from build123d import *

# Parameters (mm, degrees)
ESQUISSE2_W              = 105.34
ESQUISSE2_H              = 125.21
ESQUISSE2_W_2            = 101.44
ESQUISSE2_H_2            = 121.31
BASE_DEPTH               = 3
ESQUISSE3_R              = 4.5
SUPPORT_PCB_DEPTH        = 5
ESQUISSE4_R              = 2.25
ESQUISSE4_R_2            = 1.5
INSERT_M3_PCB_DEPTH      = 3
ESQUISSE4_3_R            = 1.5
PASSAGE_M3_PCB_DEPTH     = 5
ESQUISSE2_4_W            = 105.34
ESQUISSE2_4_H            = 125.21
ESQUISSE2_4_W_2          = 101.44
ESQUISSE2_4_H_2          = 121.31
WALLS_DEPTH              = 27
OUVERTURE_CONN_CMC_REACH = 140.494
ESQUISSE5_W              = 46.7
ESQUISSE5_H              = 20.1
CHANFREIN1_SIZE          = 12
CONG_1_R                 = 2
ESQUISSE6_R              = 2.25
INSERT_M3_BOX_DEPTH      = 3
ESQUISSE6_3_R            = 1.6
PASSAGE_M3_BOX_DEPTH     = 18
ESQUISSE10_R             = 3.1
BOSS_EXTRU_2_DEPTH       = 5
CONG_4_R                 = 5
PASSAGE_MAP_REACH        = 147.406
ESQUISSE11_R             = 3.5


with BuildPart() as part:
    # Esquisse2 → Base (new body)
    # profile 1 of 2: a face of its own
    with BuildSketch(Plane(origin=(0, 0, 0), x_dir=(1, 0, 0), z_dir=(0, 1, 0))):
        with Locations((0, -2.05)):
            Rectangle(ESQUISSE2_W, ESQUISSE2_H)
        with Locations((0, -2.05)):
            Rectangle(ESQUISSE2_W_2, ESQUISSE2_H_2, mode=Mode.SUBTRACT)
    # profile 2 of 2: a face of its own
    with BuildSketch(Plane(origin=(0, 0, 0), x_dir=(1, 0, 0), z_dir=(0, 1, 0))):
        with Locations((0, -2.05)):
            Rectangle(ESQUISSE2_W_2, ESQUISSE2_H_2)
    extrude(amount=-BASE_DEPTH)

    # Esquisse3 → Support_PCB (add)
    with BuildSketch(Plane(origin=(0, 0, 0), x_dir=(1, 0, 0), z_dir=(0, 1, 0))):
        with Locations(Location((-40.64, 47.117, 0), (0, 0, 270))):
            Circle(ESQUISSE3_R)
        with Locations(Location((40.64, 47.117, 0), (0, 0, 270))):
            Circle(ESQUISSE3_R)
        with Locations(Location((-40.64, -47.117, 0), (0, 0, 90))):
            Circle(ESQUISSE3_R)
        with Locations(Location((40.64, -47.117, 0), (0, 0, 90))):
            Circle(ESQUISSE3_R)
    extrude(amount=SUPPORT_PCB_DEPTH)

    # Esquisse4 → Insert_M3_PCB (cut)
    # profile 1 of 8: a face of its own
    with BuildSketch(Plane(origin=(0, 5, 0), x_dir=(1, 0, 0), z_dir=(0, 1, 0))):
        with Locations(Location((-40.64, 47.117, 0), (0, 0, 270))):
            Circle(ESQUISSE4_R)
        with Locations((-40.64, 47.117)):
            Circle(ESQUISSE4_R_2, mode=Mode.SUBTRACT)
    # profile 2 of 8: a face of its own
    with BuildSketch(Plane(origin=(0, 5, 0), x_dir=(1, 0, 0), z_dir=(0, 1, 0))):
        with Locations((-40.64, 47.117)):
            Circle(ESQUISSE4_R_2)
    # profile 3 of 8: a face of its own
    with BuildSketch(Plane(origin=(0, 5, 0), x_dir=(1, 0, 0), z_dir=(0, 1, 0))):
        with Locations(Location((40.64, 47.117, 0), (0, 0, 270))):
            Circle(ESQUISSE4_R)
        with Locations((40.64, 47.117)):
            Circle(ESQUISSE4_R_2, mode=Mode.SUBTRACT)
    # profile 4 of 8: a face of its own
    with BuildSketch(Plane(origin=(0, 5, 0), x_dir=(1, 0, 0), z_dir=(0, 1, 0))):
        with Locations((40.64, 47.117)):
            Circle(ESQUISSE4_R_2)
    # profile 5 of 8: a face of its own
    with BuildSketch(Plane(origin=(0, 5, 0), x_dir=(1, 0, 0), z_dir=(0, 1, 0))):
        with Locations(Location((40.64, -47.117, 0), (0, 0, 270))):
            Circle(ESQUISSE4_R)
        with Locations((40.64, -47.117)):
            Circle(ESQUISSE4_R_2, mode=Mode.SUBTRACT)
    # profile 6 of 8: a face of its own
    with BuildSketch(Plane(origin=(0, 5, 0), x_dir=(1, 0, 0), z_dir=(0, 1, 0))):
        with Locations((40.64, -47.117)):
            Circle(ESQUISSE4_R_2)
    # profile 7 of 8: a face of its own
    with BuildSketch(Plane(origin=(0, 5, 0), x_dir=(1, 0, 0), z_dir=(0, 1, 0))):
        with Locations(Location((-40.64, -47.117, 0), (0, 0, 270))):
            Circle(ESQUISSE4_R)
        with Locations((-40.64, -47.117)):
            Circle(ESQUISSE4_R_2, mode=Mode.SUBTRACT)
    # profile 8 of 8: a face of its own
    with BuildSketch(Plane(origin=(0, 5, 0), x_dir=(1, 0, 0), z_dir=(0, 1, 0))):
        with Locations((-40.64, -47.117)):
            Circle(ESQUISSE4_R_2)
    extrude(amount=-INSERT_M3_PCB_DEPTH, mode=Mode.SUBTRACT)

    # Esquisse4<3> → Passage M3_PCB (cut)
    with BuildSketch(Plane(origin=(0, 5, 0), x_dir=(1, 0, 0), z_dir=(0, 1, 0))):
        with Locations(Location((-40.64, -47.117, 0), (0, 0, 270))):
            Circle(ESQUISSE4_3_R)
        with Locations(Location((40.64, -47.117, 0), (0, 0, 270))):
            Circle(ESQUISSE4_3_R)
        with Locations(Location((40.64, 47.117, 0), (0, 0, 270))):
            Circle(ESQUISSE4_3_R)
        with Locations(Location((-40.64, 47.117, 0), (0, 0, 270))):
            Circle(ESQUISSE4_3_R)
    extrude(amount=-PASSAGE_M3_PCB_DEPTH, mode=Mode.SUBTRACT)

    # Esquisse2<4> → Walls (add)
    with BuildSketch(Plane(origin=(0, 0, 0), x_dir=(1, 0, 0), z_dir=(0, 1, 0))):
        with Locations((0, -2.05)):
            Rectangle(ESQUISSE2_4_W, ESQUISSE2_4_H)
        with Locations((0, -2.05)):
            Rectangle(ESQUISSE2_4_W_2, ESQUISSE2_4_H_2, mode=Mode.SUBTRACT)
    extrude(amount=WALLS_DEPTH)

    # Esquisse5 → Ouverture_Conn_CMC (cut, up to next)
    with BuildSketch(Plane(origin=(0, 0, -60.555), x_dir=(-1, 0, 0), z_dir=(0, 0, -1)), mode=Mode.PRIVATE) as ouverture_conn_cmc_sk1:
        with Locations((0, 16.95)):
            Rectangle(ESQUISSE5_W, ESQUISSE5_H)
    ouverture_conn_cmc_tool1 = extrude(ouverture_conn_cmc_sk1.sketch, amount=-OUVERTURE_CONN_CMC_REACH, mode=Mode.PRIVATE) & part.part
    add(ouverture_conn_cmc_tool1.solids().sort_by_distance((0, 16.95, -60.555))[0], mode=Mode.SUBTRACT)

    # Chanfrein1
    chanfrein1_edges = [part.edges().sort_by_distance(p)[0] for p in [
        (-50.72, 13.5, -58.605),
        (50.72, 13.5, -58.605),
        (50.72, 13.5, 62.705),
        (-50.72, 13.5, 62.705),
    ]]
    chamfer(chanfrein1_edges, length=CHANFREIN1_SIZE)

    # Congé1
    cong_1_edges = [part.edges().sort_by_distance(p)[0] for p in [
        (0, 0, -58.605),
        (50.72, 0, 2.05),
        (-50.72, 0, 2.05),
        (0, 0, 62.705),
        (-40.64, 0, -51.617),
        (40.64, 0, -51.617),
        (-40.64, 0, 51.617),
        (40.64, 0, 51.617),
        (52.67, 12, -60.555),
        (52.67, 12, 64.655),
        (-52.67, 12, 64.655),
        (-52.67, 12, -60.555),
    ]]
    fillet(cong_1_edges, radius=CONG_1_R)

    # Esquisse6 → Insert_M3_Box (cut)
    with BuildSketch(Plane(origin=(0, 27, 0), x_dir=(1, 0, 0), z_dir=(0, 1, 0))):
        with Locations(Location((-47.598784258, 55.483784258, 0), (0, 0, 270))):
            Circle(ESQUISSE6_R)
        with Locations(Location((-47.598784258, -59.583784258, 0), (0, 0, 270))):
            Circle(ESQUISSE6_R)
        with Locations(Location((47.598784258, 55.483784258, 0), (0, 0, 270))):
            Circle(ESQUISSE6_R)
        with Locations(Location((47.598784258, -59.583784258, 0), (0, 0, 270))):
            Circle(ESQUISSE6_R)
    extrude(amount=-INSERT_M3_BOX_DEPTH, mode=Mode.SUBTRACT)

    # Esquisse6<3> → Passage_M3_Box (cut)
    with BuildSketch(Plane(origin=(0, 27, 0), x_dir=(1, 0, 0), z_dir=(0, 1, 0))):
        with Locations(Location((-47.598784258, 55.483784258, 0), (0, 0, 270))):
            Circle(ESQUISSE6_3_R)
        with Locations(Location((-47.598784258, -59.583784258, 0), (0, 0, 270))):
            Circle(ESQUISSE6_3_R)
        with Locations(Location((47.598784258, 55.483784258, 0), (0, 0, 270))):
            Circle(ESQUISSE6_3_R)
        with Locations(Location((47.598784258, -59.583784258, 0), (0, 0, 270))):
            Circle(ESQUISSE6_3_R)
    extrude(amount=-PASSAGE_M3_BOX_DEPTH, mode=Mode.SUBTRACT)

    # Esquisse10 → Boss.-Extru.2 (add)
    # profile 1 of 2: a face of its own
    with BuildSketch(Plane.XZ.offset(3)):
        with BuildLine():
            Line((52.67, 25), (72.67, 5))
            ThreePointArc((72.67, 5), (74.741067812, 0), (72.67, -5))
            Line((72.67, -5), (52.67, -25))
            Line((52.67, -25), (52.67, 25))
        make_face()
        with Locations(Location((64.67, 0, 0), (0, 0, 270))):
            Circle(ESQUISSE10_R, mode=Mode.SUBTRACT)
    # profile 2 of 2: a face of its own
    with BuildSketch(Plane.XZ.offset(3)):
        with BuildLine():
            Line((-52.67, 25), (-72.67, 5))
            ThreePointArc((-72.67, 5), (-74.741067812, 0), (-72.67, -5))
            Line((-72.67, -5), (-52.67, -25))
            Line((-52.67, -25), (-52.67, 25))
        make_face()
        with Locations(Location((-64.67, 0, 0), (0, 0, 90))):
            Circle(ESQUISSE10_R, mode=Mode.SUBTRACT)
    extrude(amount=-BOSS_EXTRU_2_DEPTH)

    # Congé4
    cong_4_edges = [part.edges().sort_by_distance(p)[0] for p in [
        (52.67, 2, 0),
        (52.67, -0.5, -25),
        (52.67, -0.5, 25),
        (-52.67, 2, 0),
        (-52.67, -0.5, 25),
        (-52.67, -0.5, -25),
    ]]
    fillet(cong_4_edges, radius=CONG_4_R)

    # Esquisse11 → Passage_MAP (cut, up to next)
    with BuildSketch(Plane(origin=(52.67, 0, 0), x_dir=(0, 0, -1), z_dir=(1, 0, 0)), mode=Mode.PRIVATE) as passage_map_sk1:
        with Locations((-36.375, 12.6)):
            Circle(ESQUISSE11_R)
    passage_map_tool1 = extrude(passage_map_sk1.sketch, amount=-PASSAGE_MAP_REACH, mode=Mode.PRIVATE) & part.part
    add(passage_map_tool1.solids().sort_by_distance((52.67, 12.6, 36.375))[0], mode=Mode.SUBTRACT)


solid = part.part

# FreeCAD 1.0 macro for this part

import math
import FreeCAD as App
import Part
import Sketcher
from FreeCAD import Vector
Q = App.Units.Quantity


def edges_at(feature, points):
    """Names of the edges that pass closest to the given points."""
    edges = feature.Shape.Edges
    near = lambda p: min(range(len(edges)), key=lambda i: edges[i].distToShape(Part.Vertex(*p))[0])
    return sorted({f"Edge{near(p) + 1}" for p in points})


def add_polygon(sketch, points):
    """Adds a closed chain of lines whose ends are joined by coincident constraints."""
    first, n = sketch.GeometryCount, len(points)
    for a, b in zip(points, points[1:] + points[:1]):
        sketch.addGeometry(Part.LineSegment(App.Vector(*a, 0), App.Vector(*b, 0)), False)
    for i in range(n):
        sketch.addConstraint(Sketcher.Constraint("Coincident", first + i, 2, first + (i + 1) % n, 1))

doc = App.newDocument("Part")
body = doc.addObject("PartDesign::Body", "Body")

# Sketch on XZ plane
sketch1 = body.newObject("Sketcher::SketchObject", "Sketch")
sketch1.AttachmentSupport = (doc.getObject("XZ_Plane"), [""])
sketch1.MapMode = "FlatFace"
add_polygon(sketch1, [(-52.67, -60.555), (-52.67, 64.655), (52.67, 64.655), (52.67, -60.555)])  # lines 0-3
sketch1.addConstraint([
    Sketcher.Constraint("Vertical", 0),
    Sketcher.Constraint("Horizontal", 1),
    Sketcher.Constraint("Vertical", 2),
    Sketcher.Constraint("Horizontal", 3),
    Sketcher.Constraint("DistanceX", 1, 1, 1, 2, Q("105.34 mm")),
    Sketcher.Constraint("DistanceY", 0, 1, 0, 2, Q("125.21 mm")),
    Sketcher.Constraint("DistanceX", 0, 2, -1, 1, Q("52.67 mm")),
    Sketcher.Constraint("DistanceY", -1, 1, 0, 2, Q("64.655 mm")),
])
pad1 = body.newObject("PartDesign::Pad", "Pad")
pad1.Profile = sketch1
pad1.Length = 3

# Sketch on XZ plane
sketch2 = body.newObject("Sketcher::SketchObject", "Sketch001")
sketch2.AttachmentSupport = (doc.getObject("XZ_Plane"), [""])
sketch2.MapMode = "FlatFace"
sketch2.addGeometry([
    Part.Circle(Vector(-40.64, -47.117, 0), Vector(0, 0, 1), 4.5),
    Part.Circle(Vector(40.64, -47.117, 0), Vector(0, 0, 1), 4.5),
    Part.Circle(Vector(-40.64, 47.117, 0), Vector(0, 0, 1), 4.5),
    Part.Circle(Vector(40.64, 47.117, 0), Vector(0, 0, 1), 4.5),
], False)
sketch2.addConstraint([
    Sketcher.Constraint("Equal", 0, 1),
    Sketcher.Constraint("Equal", 1, 2),
    Sketcher.Constraint("Equal", 2, 3),
    Sketcher.Constraint("Symmetric", 1, 3, 2, 3, -1, 1),
    Sketcher.Constraint("Symmetric", 0, 3, 3, 3, -1, 1),
    Sketcher.Constraint("Symmetric", 0, 3, 1, 3, -2),
    Sketcher.Constraint("Diameter", 0, Q("9 mm")),
    Sketcher.Constraint("DistanceX", 0, 3, -1, 1, Q("40.64 mm")),
    Sketcher.Constraint("DistanceY", 0, 3, -1, 1, Q("47.117 mm")),
])
pad2 = body.newObject("PartDesign::Pad", "Pad001")
pad2.Profile = sketch2
pad2.Length = 5
pad2.Reversed = True

# Sketch on XZ plane
sketch3 = body.newObject("Sketcher::SketchObject", "Sketch002")
sketch3.AttachmentSupport = (doc.getObject("XZ_Plane"), [""])
sketch3.MapMode = "FlatFace"
sketch3.AttachmentOffset = App.Placement(Vector(0, 0, -5), App.Rotation())
sketch3.addGeometry([
    Part.Circle(Vector(-40.64, -47.117, 0), Vector(0, 0, 1), 2.25),
    Part.Circle(Vector(40.64, -47.117, 0), Vector(0, 0, 1), 2.25),
    Part.Circle(Vector(40.64, 47.117, 0), Vector(0, 0, 1), 2.25),
    Part.Circle(Vector(-40.64, 47.117, 0), Vector(0, 0, 1), 2.25),
], False)
sketch3.addConstraint([
    Sketcher.Constraint("Equal", 0, 1),
    Sketcher.Constraint("Equal", 1, 2),
    Sketcher.Constraint("Equal", 2, 3),
    Sketcher.Constraint("Symmetric", 0, 3, 2, 3, -1, 1),
    Sketcher.Constraint("Symmetric", 1, 3, 3, 3, -1, 1),
    Sketcher.Constraint("Symmetric", 0, 3, 1, 3, -2),
    Sketcher.Constraint("Diameter", 0, Q("4.5 mm")),
    Sketcher.Constraint("DistanceX", 0, 3, -1, 1, Q("40.64 mm")),
    Sketcher.Constraint("DistanceY", 0, 3, -1, 1, Q("47.117 mm")),
])
pocket1 = body.newObject("PartDesign::Pocket", "Pocket")
pocket1.Profile = sketch3
pocket1.Length = 3
pocket1.Reversed = True

# Sketch on XZ plane
sketch4 = body.newObject("Sketcher::SketchObject", "Sketch003")
sketch4.AttachmentSupport = (doc.getObject("XZ_Plane"), [""])
sketch4.MapMode = "FlatFace"
sketch4.AttachmentOffset = App.Placement(Vector(0, 0, -5), App.Rotation())
sketch4.addGeometry([
    Part.Circle(Vector(-40.64, 47.117, 0), Vector(0, 0, 1), 1.5),
    Part.Circle(Vector(40.64, 47.117, 0), Vector(0, 0, 1), 1.5),
    Part.Circle(Vector(40.64, -47.117, 0), Vector(0, 0, 1), 1.5),
    Part.Circle(Vector(-40.64, -47.117, 0), Vector(0, 0, 1), 1.5),
], False)
sketch4.addConstraint([
    Sketcher.Constraint("Equal", 0, 1),
    Sketcher.Constraint("Equal", 1, 2),
    Sketcher.Constraint("Equal", 2, 3),
    Sketcher.Constraint("Symmetric", 0, 3, 2, 3, -1, 1),
    Sketcher.Constraint("Symmetric", 1, 3, 3, 3, -1, 1),
    Sketcher.Constraint("Symmetric", 0, 3, 1, 3, -2),
    Sketcher.Constraint("Diameter", 0, Q("3 mm")),
    Sketcher.Constraint("DistanceX", 0, 3, -1, 1, Q("40.64 mm")),
    Sketcher.Constraint("DistanceY", -1, 1, 0, 3, Q("47.117 mm")),
])
pocket2 = body.newObject("PartDesign::Pocket", "Pocket001")
pocket2.Profile = sketch4
pocket2.Length = 5
pocket2.Reversed = True

# Sketch on XZ plane
sketch5 = body.newObject("Sketcher::SketchObject", "Sketch004")
sketch5.AttachmentSupport = (doc.getObject("XZ_Plane"), [""])
sketch5.MapMode = "FlatFace"
add_polygon(sketch5, [(-52.67, -60.555), (-52.67, 64.655), (52.67, 64.655), (52.67, -60.555)])  # lines 0-3
add_polygon(sketch5, [(50.72, 62.705), (-50.72, 62.705), (-50.72, -58.605), (50.72, -58.605)])  # lines 4-7
sketch5.addConstraint([
    Sketcher.Constraint("Vertical", 0),
    Sketcher.Constraint("Horizontal", 1),
    Sketcher.Constraint("Vertical", 2),
    Sketcher.Constraint("Horizontal", 3),
    Sketcher.Constraint("Horizontal", 4),
    Sketcher.Constraint("Vertical", 5),
    Sketcher.Constraint("Horizontal", 6),
    Sketcher.Constraint("Vertical", 7),
    Sketcher.Constraint("DistanceX", 1, 1, 1, 2, Q("105.34 mm")),
    Sketcher.Constraint("DistanceX", 4, 2, 4, 1, Q("101.44 mm")),
    Sketcher.Constraint("DistanceY", 0, 1, 0, 2, Q("125.21 mm")),
    Sketcher.Constraint("DistanceY", 5, 2, 5, 1, Q("121.31 mm")),
    Sketcher.Constraint("DistanceX", 0, 2, -1, 1, Q("52.67 mm")),
    Sketcher.Constraint("DistanceX", 4, 2, -1, 1, Q("50.72 mm")),
    Sketcher.Constraint("DistanceY", 4, 2, 0, 2, Q("1.95 mm")),
    Sketcher.Constraint("DistanceY", -1, 1, 0, 2, Q("64.655 mm")),
])
pad3 = body.newObject("PartDesign::Pad", "Pad002")
pad3.Profile = sketch5
pad3.Length = 27
pad3.Reversed = True

# Sketch on XY plane
sketch6 = body.newObject("Sketcher::SketchObject", "Sketch005")
sketch6.AttachmentSupport = (doc.getObject("XY_Plane"), [""])
sketch6.MapMode = "FlatFace"
sketch6.AttachmentOffset = App.Placement(Vector(0, 0, -60.555), App.Rotation())
add_polygon(sketch6, [(23.35, 27), (23.35, 6.9), (-23.35, 6.9), (-23.35, 27)])  # lines 0-3
sketch6.addConstraint([
    Sketcher.Constraint("Vertical", 0),
    Sketcher.Constraint("Horizontal", 1),
    Sketcher.Constraint("Vertical", 2),
    Sketcher.Constraint("Horizontal", 3),
    Sketcher.Constraint("DistanceX", 1, 2, 1, 1, Q("46.7 mm")),
    Sketcher.Constraint("DistanceY", 0, 2, 0, 1, Q("20.1 mm")),
    Sketcher.Constraint("DistanceY", -1, 1, 2, 2, Q("27 mm")),
    Sketcher.Constraint("DistanceX", -1, 1, 0, 2, Q("23.35 mm")),
])
pocket3 = body.newObject("PartDesign::Pocket", "Pocket002")
pocket3.Profile = sketch6
pocket3.Type = "UpToFirst"
pocket3.Reversed = True
doc.recompute()

chamfer = body.newObject("PartDesign::Chamfer", "Chamfer")
chamfer.Base = (pocket3, edges_at(pocket3, [
    (-50.72, 13.5, -58.605),
    (50.72, 13.5, -58.605),
    (50.72, 13.5, 62.705),
    (-50.72, 13.5, 62.705),
]))
chamfer.Size = 12
doc.recompute()

fillet = body.newObject("PartDesign::Fillet", "Fillet")
fillet.Base = (chamfer, edges_at(chamfer, [
    (0, 0, -58.605),
    (50.72, 0, 2.05),
    (-50.72, 0, 2.05),
    (0, 0, 62.705),
    (-40.64, 0, -51.617),
    (40.64, 0, -51.617),
    (-40.64, 0, 51.617),
    (40.64, 0, 51.617),
    (52.67, 12, -60.555),
    (52.67, 12, 64.655),
    (-52.67, 12, 64.655),
    (-52.67, 12, -60.555),
]))
fillet.Radius = 2

# Sketch on XZ plane
sketch7 = body.newObject("Sketcher::SketchObject", "Sketch006")
sketch7.AttachmentSupport = (doc.getObject("XZ_Plane"), [""])
sketch7.MapMode = "FlatFace"
sketch7.AttachmentOffset = App.Placement(Vector(0, 0, -27), App.Rotation())
sketch7.addGeometry([
    Part.Circle(Vector(-47.598784, -55.483784, 0), Vector(0, 0, 1), 2.25),
    Part.Circle(Vector(-47.598784, 59.583784, 0), Vector(0, 0, 1), 2.25),
    Part.Circle(Vector(47.598784, -55.483784, 0), Vector(0, 0, 1), 2.25),
    Part.Circle(Vector(47.598784, 59.583784, 0), Vector(0, 0, 1), 2.25),
], False)
sketch7.addConstraint([
    Sketcher.Constraint("Equal", 0, 1),
    Sketcher.Constraint("Equal", 1, 2),
    Sketcher.Constraint("Equal", 2, 3),
    Sketcher.Constraint("Symmetric", 0, 3, 2, 3, -2),
    Sketcher.Constraint("Symmetric", 1, 3, 3, 3, -2),
    Sketcher.Constraint("Vertical", 0, 3, 1, 3),
    Sketcher.Constraint("Diameter", 0, Q("4.5 mm")),
    Sketcher.Constraint("DistanceY", 0, 3, 1, 3, Q("115.067569 mm")),
    Sketcher.Constraint("DistanceX", 0, 3, 2, 3, Q("95.197569 mm")),
    Sketcher.Constraint("DistanceY", 0, 3, -1, 1, Q("55.483784 mm")),
])
pocket4 = body.newObject("PartDesign::Pocket", "Pocket003")
pocket4.Profile = sketch7
pocket4.Length = 3
pocket4.Reversed = True

# Sketch on XZ plane
sketch8 = body.newObject("Sketcher::SketchObject", "Sketch007")
sketch8.AttachmentSupport = (doc.getObject("XZ_Plane"), [""])
sketch8.MapMode = "FlatFace"
sketch8.AttachmentOffset = App.Placement(Vector(0, 0, -27), App.Rotation())
sketch8.addGeometry([
    Part.Circle(Vector(-47.598784, -55.483784, 0), Vector(0, 0, 1), 1.6),
    Part.Circle(Vector(-47.598784, 59.583784, 0), Vector(0, 0, 1), 1.6),
    Part.Circle(Vector(47.598784, -55.483784, 0), Vector(0, 0, 1), 1.6),
    Part.Circle(Vector(47.598784, 59.583784, 0), Vector(0, 0, 1), 1.6),
], False)
sketch8.addConstraint([
    Sketcher.Constraint("Equal", 0, 1),
    Sketcher.Constraint("Equal", 1, 2),
    Sketcher.Constraint("Equal", 2, 3),
    Sketcher.Constraint("Symmetric", 0, 3, 2, 3, -2),
    Sketcher.Constraint("Symmetric", 1, 3, 3, 3, -2),
    Sketcher.Constraint("Vertical", 0, 3, 1, 3),
    Sketcher.Constraint("Diameter", 0, Q("3.2 mm")),
    Sketcher.Constraint("DistanceY", 0, 3, 1, 3, Q("115.067569 mm")),
    Sketcher.Constraint("DistanceX", 0, 3, 2, 3, Q("95.197569 mm")),
    Sketcher.Constraint("DistanceY", 0, 3, -1, 1, Q("55.483784 mm")),
])
pocket5 = body.newObject("PartDesign::Pocket", "Pocket004")
pocket5.Profile = sketch8
pocket5.Length = 18
pocket5.Reversed = True

# Sketch on XZ plane
sketch9 = body.newObject("Sketcher::SketchObject", "Sketch008")
sketch9.AttachmentSupport = (doc.getObject("XZ_Plane"), [""])
sketch9.MapMode = "FlatFace"
sketch9.AttachmentOffset = App.Placement(Vector(0, 0, 3), App.Rotation())
sketch9.addGeometry([
    Part.LineSegment(Vector(72.67, 5, 0), Vector(52.67, 25, 0)),  # 0
    Part.LineSegment(Vector(52.67, 25, 0), Vector(52.67, -25, 0)),  # 1
    Part.LineSegment(Vector(52.67, -25, 0), Vector(72.67, -5, 0)),  # 2
    Part.ArcOfCircle(Part.Circle(Vector(67.67, 0, 0), Vector(0, 0, 1), 7.071068), math.radians(-45), math.radians(45)),  # 3
    Part.Circle(Vector(64.67, 0, 0), Vector(0, 0, 1), 3.1),  # 4
    Part.LineSegment(Vector(-52.67, 25, 0), Vector(-72.67, 5, 0)),  # 5
    Part.ArcOfCircle(Part.Circle(Vector(-67.67, 0, 0), Vector(0, 0, 1), 7.071068), math.radians(135), math.radians(225)),  # 6
    Part.LineSegment(Vector(-72.67, -5, 0), Vector(-52.67, -25, 0)),  # 7
    Part.LineSegment(Vector(-52.67, -25, 0), Vector(-52.67, 25, 0)),  # 8
    Part.Circle(Vector(-64.67, 0, 0), Vector(0, 0, 1), 3.1),  # 9
], False)
sketch9.addConstraint([
    Sketcher.Constraint("Coincident", 0, 2, 1, 1),
    Sketcher.Constraint("Coincident", 1, 2, 2, 1),
    Sketcher.Constraint("Tangent", 2, 2, 3, 1),
    Sketcher.Constraint("Tangent", 3, 2, 0, 1),
    Sketcher.Constraint("Tangent", 5, 2, 6, 1),
    Sketcher.Constraint("Tangent", 6, 2, 7, 1),
    Sketcher.Constraint("Coincident", 7, 2, 8, 1),
    Sketcher.Constraint("Coincident", 8, 2, 5, 1),
    Sketcher.Constraint("Vertical", 1),
    Sketcher.Constraint("Vertical", 8),
    Sketcher.Constraint("Equal", 3, 6),
    Sketcher.Constraint("Equal", 4, 9),
    Sketcher.Constraint("Symmetric", 3, 3, 6, 3, -1, 1),
    Sketcher.Constraint("Symmetric", 4, 3, 9, 3, -1, 1),
    Sketcher.Constraint("Symmetric", 0, 2, 7, 2, -1, 1),
    Sketcher.Constraint("Symmetric", 3, 2, 5, 2, -2),
    Sketcher.Constraint("PointOnObject", 4, 3, -1),
    Sketcher.Constraint("Perpendicular", 0, 2),
    Sketcher.Constraint("Parallel", 2, 5),
    Sketcher.Constraint("Diameter", 4, Q("6.2 mm")),
    Sketcher.Constraint("DistanceY", 1, 2, 1, 1, Q("50 mm")),
    Sketcher.Constraint("DistanceY", 2, 2, -1, 1, Q("5 mm")),
    Sketcher.Constraint("DistanceX", 4, 3, 3, 3, Q("3 mm")),
    Sketcher.Constraint("DistanceX", -1, 1, 3, 3, Q("67.67 mm")),
])
pad4 = body.newObject("PartDesign::Pad", "Pad003")
pad4.Profile = sketch9
pad4.Length = 5
pad4.Reversed = True
doc.recompute()

fillet2 = body.newObject("PartDesign::Fillet", "Fillet001")
fillet2.Base = (pad4, edges_at(pad4, [
    (52.67, 2, 0),
    (52.67, -0.5, -25),
    (52.67, -0.5, 25),
    (-52.67, 2, 0),
    (-52.67, -0.5, 25),
    (-52.67, -0.5, -25),
]))
fillet2.Radius = 5

# Sketch on YZ plane
sketch10 = body.newObject("Sketcher::SketchObject", "Sketch009")
sketch10.AttachmentSupport = (doc.getObject("YZ_Plane"), [""])
sketch10.MapMode = "FlatFace"
sketch10.AttachmentOffset = App.Placement(Vector(0, 0, 52.67), App.Rotation())
sketch10.addGeometry(Part.Circle(Vector(12.6, 36.375, 0), Vector(0, 0, 1), 3.5), False)
sketch10.addConstraint([
    Sketcher.Constraint("Diameter", 0, Q("7 mm")),
    Sketcher.Constraint("DistanceX", -1, 1, 0, 3, Q("12.6 mm")),
    Sketcher.Constraint("DistanceY", -1, 1, 0, 3, Q("36.375 mm")),
])
pocket6 = body.newObject("PartDesign::Pocket", "Pocket005")
pocket6.Profile = sketch10
pocket6.Type = "UpToFirst"

doc.recompute()
